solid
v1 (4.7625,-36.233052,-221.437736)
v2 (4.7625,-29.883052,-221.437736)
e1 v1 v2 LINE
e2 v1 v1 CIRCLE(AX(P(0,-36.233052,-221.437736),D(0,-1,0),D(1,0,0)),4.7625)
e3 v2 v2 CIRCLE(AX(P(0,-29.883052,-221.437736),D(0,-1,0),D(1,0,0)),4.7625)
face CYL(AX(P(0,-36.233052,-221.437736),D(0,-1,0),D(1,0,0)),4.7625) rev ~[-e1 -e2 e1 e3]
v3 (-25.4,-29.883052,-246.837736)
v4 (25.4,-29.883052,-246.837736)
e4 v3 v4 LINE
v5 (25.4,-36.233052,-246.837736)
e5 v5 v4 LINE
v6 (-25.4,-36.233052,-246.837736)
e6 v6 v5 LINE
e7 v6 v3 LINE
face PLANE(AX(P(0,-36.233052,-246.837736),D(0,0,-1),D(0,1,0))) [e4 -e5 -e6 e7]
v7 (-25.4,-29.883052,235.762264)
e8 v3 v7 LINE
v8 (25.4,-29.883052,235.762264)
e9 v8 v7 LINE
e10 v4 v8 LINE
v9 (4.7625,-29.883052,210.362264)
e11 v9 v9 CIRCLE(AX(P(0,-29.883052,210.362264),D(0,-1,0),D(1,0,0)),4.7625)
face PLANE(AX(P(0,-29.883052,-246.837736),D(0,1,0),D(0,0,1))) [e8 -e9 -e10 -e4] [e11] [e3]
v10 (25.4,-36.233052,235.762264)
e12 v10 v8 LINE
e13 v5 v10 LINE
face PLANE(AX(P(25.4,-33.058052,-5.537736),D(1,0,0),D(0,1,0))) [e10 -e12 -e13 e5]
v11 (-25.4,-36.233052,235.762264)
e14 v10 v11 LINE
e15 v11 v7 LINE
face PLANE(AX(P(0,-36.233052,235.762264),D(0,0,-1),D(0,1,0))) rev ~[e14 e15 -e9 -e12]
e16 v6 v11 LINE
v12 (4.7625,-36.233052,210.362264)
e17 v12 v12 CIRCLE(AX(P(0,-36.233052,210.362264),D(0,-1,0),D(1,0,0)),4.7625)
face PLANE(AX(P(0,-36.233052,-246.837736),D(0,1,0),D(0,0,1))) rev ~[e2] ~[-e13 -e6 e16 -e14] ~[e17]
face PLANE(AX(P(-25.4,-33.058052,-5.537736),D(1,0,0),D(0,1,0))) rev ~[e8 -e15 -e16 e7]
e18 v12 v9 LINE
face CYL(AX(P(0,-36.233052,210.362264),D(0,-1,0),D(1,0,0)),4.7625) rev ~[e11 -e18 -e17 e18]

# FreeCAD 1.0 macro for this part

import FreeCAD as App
import Part
import Sketcher
Q = App.Units.Quantity

doc = App.newDocument("Part")
body = doc.addObject("PartDesign::Body", "Body")

sketch1 = body.newObject("Sketcher::SketchObject", "Sketch")
sketch1.AttachmentSupport = (doc.getObject("YZ_Plane"), [""])
sketch1.MapMode = "FlatFace"
sketch1.addGeometry([
    Part.LineSegment(App.Vector(-36, 236, 0), App.Vector(-36, -247, 0)),
    Part.LineSegment(App.Vector(-36, -247, 0), App.Vector(-30, -247, 0)),
    Part.LineSegment(App.Vector(-30, -247, 0), App.Vector(-30, 236, 0)),
    Part.LineSegment(App.Vector(-30, 236, 0), App.Vector(-36, 236, 0)),
], False)
sketch1.addConstraint([
    Sketcher.Constraint("Coincident", 0, 2, 1, 1),
    Sketcher.Constraint("Coincident", 1, 2, 2, 1),
    Sketcher.Constraint("Coincident", 2, 2, 3, 1),
    Sketcher.Constraint("Coincident", 3, 2, 0, 1),
    Sketcher.Constraint("Vertical", 0),
    Sketcher.Constraint("Horizontal", 1),
    Sketcher.Constraint("Vertical", 2),
    Sketcher.Constraint("Horizontal", 3),
    Sketcher.Constraint("DistanceY", 0, 2, 0, 1, Q("19 in")),
    Sketcher.Constraint("DistanceX", 1, 1, 1, 2, Q("0.25 in")),
    Sketcher.Constraint("DistanceX", 1, 2, -1, 1, 29.883052),
    Sketcher.Constraint("DistanceY", 0, 2, -1, 1, 246.837736),
])
pad1 = body.newObject("PartDesign::Pad", "Pad")
pad1.Profile = sketch1
pad1.Length = Q("2 in")
pad1.Midplane = True

sketch2 = body.newObject("Sketcher::SketchObject", "Sketch001")
sketch2.AttachmentSupport = (doc.getObject("XZ_Plane"), [""])
sketch2.MapMode = "FlatFace"
sketch2.AttachmentOffset = App.Placement(App.Vector(0, 0, 36.233052), App.Rotation())
sketch2.addGeometry([
    Part.Circle(App.Vector(0, 210.4, 0), App.Vector(0, 0, 1), 4.8),
    Part.Circle(App.Vector(0, -221.4, 0), App.Vector(0, 0, 1), 4.8),
], False)
sketch2.addConstraint([
    Sketcher.Constraint("Equal", 0, 1),
    Sketcher.Constraint("PointOnObject", 0, 3, -2),
    Sketcher.Constraint("PointOnObject", 1, 3, -2),
    Sketcher.Constraint("Diameter", 0, Q("0.375 in")),
    Sketcher.Constraint("DistanceY", 1, 3, 0, 3, Q("17 in")),
    Sketcher.Constraint("DistanceY", -1, 1, 0, 3, 210.362264),
])
pocket1 = body.newObject("PartDesign::Pocket", "Pocket")
pocket1.Profile = sketch2
pocket1.Type = "ThroughAll"

doc.recompute()
